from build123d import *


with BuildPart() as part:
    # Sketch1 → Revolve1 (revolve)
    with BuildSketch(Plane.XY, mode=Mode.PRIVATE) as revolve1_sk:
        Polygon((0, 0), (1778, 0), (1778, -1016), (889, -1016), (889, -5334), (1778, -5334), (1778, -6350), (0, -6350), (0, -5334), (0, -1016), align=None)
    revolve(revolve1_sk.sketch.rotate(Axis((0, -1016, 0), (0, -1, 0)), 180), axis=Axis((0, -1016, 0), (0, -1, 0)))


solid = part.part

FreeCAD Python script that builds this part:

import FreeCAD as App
import Part
import Sketcher
Q = App.Units.Quantity


def add_polygon(sketch, points):
    """Adds a closed chain of lines whose ends are joined by coincident constraints."""
    first, n = sketch.GeometryCount, len(points)
    for a, b in zip(points, points[1:] + points[:1]):
        sketch.addGeometry(Part.LineSegment(App.Vector(*a, 0), App.Vector(*b, 0)), False)
    for i in range(n):
        sketch.addConstraint(Sketcher.Constraint("Coincident", first + i, 2, first + (i + 1) % n, 1))

doc = App.newDocument("Part")
params = doc.addObject("Spreadsheet::Sheet", "Params")
for row, (alias, value) in enumerate([
    ("sketch1_width", "70 in"),
    ("sketch1_width2", "35 in"),
    ("sketch1_height", "250 in"),
    ("sketch1_height2", "40 in"),
    ("revolution_angle", "360 deg"),
], start=1):
    params.set(f"A{row}", alias)
    params.set(f"B{row}", "=" + value)
    params.setAlias(f"B{row}", alias)

body = doc.addObject("PartDesign::Body", "Body")

sketch1 = doc.addObject("Sketcher::SketchObject", "Sketch")
body.addObject(sketch1)
sketch1.AttachmentSupport = (doc.XY_Plane, [""])
sketch1.MapMode = "FlatFace"
add_polygon(sketch1, [(1778, 0), (0, 0), (0, -6350), (1778, -6350), (1778, -5334), (889, -5334), (889, -1016), (1778, -1016)])
sketch1.addConstraint(Sketcher.Constraint("Horizontal", 0))
sketch1.addConstraint(Sketcher.Constraint("Vertical", 1))
sketch1.addConstraint(Sketcher.Constraint("Horizontal", 2))
sketch1.addConstraint(Sketcher.Constraint("Vertical", 3))
sketch1.addConstraint(Sketcher.Constraint("Horizontal", 4))
sketch1.addConstraint(Sketcher.Constraint("Vertical", 5))
sketch1.addConstraint(Sketcher.Constraint("Horizontal", 6))
sketch1.addConstraint(Sketcher.Constraint("Vertical", 7))
sketch1.addConstraint(Sketcher.Constraint("Coincident", 0, 2, -1, 1))
sketch1.addConstraint(Sketcher.Constraint("Vertical", 3, 2, 6, 2))
sketch1.addConstraint(Sketcher.Constraint("Equal", 3, 7))
sketch1.addConstraint(Sketcher.Constraint("DistanceX", 0, 2, 0, 1, Q("70 in")))
sketch1.addConstraint(Sketcher.Constraint("DistanceX", 4, 2, 4, 1, Q("35 in")))
sketch1.addConstraint(Sketcher.Constraint("DistanceY", 1, 2, 1, 1, Q("250 in")))
sketch1.addConstraint(Sketcher.Constraint("DistanceY", 3, 1, 3, 2, Q("40 in")))
sketch1.setExpression("Constraints[19]", "Params.sketch1_width")
sketch1.setExpression("Constraints[20]", "Params.sketch1_width2")
sketch1.setExpression("Constraints[21]", "Params.sketch1_height")
sketch1.setExpression("Constraints[22]", "Params.sketch1_height2")
revolution = doc.addObject("PartDesign::Revolution", "Revolution")
body.addObject(revolution)
revolution.Profile = sketch1
revolution.ReferenceAxis = (sketch1, ["V_Axis"])
revolution.setExpression("Angle", "Params.revolution_angle")

doc.recompute()
